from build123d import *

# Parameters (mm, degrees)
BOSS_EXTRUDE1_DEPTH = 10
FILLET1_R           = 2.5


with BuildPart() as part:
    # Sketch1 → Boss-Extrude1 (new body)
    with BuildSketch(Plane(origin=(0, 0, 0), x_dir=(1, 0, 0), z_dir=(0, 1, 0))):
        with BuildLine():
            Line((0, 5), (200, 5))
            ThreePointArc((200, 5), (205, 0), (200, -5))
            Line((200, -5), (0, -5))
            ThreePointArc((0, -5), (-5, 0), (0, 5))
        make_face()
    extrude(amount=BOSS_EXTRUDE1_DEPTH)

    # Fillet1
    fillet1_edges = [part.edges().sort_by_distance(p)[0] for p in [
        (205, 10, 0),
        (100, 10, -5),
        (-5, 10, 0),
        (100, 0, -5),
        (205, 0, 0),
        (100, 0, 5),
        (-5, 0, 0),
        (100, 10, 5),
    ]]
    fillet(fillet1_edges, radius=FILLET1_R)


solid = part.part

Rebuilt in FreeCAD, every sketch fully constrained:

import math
import FreeCAD as App
import Part
import Sketcher

V = App.Vector
Q = App.Units.Quantity


def edges_at(feature, points):
    """Names of the edges that pass closest to the given points."""
    edges = feature.Shape.Edges
    near = lambda p: min(range(len(edges)), key=lambda i: edges[i].distToShape(Part.Vertex(*p))[0])
    return sorted({f"Edge{near(p) + 1}" for p in points})

doc = App.newDocument("Part")
body = doc.addObject("PartDesign::Body", "Body")

sketch1 = doc.addObject("Sketcher::SketchObject", "Sketch")
body.addObject(sketch1)
sketch1.AttachmentSupport = (doc.XZ_Plane, [""])
sketch1.MapMode = "FlatFace"
sketch1.addGeometry([
    Part.LineSegment(V(200, -5, 0), V(0, -5, 0)),
    Part.ArcOfCircle(Part.Circle(V(0, 0, 0), V(0, 0, 1), 5), math.radians(90), math.radians(270)),
    Part.LineSegment(V(0, 5, 0), V(200, 5, 0)),
    Part.ArcOfCircle(Part.Circle(V(200, 0, 0), V(0, 0, 1), 5), math.radians(-90), math.radians(90)),
], False)
sketch1.addConstraint([
    Sketcher.Constraint("Tangent", 0, 2, 1, 2),
    Sketcher.Constraint("Tangent", 1, 1, 2, 1),
    Sketcher.Constraint("Tangent", 2, 2, 3, 2),
    Sketcher.Constraint("Tangent", 3, 1, 0, 1),
    Sketcher.Constraint("Horizontal", 0),
    Sketcher.Constraint("Horizontal", 2),
    Sketcher.Constraint("Coincident", 1, 3, -1, 1),
    Sketcher.Constraint("Radius", 1, Q("5 mm")),
    Sketcher.Constraint("DistanceX", 0, 2, 0, 1, Q("200 mm")),
])
pad1 = doc.addObject("PartDesign::Pad", "Pad")
body.addObject(pad1)
pad1.Profile = sketch1
pad1.Length = 10
pad1.Reversed = True
doc.recompute()

fillet = doc.addObject("PartDesign::Fillet", "Fillet")
body.addObject(fillet)
fillet.Base = (pad1, edges_at(pad1, [
    (205, 10, 0),
    (100, 10, -5),
    (-5, 10, 0),
    (100, 0, -5),
    (205, 0, 0),
    (100, 0, 5),
    (-5, 0, 0),
    (100, 10, 5),
]))
fillet.Radius = 2.5

doc.recompute()
